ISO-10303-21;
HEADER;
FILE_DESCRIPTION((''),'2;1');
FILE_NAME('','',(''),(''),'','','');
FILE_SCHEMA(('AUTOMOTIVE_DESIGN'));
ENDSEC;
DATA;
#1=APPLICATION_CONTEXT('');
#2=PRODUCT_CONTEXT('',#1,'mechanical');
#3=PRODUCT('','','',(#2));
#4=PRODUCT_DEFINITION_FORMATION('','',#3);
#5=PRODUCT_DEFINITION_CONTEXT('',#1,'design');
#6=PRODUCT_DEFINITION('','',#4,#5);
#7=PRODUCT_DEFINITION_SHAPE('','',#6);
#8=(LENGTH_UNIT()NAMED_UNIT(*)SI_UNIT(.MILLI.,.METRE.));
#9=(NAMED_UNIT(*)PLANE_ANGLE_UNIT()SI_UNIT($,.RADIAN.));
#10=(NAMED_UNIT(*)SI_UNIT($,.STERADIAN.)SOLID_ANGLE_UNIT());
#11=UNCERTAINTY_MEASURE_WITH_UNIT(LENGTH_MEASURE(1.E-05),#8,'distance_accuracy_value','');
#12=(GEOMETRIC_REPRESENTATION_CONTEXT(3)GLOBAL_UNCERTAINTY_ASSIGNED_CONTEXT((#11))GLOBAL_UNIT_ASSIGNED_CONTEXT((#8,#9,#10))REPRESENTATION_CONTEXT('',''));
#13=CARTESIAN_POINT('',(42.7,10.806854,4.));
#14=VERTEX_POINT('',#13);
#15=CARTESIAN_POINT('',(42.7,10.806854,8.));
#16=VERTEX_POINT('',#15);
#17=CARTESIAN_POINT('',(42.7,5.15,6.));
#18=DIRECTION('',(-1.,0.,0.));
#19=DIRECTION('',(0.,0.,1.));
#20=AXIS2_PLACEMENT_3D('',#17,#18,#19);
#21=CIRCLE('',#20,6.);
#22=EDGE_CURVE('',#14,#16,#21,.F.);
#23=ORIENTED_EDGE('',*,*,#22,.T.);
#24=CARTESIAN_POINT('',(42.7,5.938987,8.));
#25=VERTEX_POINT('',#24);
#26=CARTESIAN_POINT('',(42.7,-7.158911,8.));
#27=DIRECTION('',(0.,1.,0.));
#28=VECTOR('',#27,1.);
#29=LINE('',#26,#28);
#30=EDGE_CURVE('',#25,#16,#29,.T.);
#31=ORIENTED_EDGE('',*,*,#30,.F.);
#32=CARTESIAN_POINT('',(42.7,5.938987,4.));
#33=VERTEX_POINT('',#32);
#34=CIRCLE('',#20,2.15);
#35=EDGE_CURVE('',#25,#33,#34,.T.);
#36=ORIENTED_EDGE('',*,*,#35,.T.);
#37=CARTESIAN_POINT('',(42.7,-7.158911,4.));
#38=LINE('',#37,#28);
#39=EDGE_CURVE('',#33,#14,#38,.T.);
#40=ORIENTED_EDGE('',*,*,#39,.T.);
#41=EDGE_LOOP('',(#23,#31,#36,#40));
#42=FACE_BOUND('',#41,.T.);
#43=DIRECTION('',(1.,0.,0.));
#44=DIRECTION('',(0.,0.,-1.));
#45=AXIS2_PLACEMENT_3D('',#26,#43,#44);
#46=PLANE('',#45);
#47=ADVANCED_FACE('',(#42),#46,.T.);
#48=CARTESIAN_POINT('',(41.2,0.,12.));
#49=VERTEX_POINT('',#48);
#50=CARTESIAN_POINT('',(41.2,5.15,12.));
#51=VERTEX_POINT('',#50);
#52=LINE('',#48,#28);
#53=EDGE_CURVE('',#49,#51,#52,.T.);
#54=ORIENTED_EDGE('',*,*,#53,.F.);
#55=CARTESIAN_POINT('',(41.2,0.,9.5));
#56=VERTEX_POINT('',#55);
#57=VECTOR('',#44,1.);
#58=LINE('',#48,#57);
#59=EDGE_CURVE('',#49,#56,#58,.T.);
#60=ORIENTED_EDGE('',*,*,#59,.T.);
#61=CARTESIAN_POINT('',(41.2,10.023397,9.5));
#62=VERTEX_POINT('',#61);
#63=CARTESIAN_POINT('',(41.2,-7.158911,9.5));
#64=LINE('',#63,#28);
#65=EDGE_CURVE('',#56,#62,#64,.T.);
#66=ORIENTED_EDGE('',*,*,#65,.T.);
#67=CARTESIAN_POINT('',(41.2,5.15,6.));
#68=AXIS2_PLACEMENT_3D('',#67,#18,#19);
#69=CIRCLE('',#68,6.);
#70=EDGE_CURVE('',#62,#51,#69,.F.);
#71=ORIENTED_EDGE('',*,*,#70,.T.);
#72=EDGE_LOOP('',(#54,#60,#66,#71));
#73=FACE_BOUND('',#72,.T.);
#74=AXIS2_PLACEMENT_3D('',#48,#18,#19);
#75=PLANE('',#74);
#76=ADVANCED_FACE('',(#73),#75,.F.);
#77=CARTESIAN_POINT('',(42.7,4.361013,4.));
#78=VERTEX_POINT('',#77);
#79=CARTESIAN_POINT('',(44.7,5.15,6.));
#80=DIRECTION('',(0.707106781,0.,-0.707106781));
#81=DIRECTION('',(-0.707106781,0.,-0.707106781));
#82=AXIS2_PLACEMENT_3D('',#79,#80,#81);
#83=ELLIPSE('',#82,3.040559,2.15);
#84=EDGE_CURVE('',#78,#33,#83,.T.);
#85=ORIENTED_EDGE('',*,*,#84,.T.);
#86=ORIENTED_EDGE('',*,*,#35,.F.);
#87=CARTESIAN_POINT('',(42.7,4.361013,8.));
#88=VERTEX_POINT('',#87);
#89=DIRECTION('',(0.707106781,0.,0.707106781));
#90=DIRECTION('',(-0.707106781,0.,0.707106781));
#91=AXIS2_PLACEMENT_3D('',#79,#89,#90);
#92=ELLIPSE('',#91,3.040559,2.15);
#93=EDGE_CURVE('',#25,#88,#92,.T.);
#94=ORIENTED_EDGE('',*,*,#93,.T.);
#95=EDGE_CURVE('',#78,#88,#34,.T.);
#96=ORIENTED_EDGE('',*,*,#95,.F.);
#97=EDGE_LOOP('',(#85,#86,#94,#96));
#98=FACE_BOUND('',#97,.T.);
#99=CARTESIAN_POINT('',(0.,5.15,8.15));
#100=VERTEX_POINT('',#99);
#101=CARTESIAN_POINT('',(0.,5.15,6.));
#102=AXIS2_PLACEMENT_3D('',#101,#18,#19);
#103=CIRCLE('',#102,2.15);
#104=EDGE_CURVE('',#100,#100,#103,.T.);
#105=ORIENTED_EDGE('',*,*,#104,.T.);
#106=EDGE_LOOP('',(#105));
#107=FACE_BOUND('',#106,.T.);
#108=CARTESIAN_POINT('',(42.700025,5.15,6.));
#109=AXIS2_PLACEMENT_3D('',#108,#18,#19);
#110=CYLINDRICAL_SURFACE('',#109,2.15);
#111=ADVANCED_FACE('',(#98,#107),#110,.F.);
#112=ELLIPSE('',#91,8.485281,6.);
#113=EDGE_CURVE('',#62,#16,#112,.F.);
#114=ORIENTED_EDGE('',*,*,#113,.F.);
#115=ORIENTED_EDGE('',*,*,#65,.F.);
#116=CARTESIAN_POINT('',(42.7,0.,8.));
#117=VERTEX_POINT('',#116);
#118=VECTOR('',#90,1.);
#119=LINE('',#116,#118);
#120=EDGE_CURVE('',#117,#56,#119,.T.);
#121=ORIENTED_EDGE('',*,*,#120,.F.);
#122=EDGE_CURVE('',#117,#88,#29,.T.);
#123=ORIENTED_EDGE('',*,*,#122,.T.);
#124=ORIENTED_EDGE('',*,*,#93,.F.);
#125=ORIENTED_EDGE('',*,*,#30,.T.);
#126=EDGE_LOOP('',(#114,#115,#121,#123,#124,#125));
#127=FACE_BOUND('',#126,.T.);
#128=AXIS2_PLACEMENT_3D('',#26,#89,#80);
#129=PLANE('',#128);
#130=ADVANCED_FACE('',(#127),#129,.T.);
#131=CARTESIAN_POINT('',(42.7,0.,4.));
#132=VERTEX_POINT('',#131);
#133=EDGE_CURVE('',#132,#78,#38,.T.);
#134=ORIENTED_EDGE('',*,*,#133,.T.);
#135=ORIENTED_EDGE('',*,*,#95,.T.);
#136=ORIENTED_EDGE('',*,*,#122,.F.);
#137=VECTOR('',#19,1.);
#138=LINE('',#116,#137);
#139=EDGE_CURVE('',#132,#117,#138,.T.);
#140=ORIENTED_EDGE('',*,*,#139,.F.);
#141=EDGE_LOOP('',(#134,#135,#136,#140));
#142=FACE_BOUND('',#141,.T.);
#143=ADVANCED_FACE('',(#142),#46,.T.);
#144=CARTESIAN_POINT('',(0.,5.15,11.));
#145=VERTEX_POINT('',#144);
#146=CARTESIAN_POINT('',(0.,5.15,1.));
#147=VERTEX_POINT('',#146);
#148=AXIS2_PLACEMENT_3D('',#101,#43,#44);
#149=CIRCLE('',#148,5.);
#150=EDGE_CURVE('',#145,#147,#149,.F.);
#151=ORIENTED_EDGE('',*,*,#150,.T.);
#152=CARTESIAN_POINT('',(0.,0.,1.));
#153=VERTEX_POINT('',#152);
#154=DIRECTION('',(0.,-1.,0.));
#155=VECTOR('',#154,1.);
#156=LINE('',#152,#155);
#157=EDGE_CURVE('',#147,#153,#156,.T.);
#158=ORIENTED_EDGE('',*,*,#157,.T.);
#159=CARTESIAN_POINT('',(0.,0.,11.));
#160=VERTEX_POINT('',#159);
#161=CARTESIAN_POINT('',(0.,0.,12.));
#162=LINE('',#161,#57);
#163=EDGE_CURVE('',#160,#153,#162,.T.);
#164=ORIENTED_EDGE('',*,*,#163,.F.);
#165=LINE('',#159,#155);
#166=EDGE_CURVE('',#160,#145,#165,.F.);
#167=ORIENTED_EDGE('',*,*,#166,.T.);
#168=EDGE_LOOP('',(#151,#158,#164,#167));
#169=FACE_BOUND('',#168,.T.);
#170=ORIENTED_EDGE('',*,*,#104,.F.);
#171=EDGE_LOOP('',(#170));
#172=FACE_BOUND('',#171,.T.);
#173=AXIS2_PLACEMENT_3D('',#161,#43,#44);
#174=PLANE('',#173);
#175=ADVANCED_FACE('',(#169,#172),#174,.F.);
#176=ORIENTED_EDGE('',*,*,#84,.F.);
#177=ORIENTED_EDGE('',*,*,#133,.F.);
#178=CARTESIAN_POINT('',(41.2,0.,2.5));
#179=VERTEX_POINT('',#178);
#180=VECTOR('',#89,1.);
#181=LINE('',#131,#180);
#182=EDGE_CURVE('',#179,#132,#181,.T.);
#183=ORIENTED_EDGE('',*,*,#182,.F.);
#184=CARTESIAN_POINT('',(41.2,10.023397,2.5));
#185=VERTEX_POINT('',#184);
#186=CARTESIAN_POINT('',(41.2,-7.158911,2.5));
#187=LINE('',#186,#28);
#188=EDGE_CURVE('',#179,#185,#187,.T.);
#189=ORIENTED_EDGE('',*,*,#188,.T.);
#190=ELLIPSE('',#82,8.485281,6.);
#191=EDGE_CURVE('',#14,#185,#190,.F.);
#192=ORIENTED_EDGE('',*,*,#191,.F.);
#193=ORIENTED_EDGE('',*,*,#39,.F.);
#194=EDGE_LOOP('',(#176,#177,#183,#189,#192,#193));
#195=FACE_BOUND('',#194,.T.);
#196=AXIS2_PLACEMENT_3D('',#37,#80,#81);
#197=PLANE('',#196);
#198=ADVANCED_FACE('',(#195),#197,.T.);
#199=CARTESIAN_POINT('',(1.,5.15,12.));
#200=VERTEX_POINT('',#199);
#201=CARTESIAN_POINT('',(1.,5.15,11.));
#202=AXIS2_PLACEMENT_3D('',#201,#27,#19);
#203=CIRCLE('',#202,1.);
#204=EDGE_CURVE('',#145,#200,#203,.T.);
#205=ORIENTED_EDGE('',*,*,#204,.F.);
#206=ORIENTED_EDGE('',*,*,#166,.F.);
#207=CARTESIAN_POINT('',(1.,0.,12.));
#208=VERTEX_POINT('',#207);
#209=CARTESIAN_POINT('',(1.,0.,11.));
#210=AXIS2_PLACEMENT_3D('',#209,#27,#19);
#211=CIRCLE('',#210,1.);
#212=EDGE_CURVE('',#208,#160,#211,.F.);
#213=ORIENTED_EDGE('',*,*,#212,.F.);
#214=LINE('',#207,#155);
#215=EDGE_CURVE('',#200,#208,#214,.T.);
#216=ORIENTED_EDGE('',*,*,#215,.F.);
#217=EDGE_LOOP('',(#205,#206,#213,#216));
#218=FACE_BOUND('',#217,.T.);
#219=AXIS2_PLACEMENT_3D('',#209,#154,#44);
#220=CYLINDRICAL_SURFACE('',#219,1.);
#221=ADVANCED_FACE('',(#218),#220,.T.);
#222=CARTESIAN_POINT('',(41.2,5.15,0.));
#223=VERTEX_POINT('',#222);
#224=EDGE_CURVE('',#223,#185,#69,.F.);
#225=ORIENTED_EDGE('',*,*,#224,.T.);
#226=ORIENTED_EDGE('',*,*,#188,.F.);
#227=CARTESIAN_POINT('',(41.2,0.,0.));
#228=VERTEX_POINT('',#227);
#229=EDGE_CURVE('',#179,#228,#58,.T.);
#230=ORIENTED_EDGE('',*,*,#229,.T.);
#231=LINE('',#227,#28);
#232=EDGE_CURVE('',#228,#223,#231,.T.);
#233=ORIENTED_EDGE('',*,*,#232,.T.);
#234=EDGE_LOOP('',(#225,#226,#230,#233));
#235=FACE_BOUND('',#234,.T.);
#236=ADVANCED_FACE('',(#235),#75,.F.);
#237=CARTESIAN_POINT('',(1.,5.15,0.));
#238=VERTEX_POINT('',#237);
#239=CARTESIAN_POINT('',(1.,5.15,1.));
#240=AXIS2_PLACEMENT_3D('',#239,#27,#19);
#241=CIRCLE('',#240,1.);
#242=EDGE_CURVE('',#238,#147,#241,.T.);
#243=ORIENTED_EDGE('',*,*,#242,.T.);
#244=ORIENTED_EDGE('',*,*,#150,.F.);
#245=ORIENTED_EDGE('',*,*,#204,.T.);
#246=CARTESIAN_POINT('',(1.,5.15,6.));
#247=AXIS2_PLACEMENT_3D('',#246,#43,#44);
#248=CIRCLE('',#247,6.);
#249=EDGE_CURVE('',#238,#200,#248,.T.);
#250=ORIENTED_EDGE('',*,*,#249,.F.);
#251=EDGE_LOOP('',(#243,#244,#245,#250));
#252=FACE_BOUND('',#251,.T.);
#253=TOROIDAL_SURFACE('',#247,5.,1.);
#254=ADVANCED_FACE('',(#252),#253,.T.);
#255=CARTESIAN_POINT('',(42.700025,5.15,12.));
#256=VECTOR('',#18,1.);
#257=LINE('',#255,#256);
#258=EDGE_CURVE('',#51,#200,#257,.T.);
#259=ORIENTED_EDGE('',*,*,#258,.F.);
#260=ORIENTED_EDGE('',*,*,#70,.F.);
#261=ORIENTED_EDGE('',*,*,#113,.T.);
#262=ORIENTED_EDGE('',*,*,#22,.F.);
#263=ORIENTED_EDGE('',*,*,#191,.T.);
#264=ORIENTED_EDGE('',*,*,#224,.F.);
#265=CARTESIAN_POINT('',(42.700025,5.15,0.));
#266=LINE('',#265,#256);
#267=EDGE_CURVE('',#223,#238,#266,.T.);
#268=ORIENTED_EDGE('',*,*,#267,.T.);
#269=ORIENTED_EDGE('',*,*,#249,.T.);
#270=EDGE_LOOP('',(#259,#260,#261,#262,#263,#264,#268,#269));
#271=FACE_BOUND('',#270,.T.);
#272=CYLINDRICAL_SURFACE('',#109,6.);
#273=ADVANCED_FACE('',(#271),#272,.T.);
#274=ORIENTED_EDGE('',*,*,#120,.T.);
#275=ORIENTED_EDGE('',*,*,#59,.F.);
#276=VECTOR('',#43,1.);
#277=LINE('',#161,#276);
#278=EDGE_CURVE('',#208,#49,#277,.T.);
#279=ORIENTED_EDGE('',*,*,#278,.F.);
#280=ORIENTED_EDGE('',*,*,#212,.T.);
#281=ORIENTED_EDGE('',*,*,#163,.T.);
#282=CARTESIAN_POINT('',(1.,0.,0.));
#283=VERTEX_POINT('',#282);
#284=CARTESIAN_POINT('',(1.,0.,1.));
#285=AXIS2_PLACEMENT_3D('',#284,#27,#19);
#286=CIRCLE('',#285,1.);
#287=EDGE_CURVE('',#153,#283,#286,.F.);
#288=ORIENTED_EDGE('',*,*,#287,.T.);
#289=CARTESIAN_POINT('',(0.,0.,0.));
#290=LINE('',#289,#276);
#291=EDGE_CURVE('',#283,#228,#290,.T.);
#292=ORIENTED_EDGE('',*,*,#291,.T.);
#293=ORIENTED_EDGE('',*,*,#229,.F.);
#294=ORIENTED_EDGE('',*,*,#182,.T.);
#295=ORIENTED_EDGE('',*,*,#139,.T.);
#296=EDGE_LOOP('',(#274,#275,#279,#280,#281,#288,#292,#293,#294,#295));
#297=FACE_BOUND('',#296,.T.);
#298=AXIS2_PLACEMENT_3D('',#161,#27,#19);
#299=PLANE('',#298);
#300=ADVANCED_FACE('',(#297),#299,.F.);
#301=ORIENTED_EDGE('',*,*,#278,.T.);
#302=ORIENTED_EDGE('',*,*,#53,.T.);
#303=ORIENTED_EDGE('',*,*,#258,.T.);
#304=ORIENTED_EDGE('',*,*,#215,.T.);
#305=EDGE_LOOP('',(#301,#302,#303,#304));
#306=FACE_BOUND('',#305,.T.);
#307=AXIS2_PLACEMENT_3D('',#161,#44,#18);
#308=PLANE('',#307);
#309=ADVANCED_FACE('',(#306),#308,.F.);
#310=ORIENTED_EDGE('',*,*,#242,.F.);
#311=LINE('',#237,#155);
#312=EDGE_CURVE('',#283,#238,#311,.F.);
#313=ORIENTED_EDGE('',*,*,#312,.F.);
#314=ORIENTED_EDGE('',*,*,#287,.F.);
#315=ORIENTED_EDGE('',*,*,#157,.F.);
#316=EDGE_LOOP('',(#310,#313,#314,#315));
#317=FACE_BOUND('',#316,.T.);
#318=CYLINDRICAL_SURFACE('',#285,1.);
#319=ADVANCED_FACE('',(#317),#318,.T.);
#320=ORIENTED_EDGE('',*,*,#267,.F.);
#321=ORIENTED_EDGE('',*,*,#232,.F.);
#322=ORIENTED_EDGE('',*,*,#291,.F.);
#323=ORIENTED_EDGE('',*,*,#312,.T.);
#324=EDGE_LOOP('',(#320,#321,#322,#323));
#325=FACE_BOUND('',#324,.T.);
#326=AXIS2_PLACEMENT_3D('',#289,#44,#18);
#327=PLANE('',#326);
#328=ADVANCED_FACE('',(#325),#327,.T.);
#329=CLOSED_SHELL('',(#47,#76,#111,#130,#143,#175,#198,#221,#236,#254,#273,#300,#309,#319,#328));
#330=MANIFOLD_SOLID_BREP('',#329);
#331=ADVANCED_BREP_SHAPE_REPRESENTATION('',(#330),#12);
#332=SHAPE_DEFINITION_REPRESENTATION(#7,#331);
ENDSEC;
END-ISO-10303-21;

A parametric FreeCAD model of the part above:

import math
import FreeCAD as App
import Part
import Sketcher

V = App.Vector
Q = App.Units.Quantity


def edges_at(feature, points):
    """Names of the edges that pass closest to the given points."""
    edges = feature.Shape.Edges
    near = lambda p: min(range(len(edges)), key=lambda i: edges[i].distToShape(Part.Vertex(*p))[0])
    return sorted({f"Edge{near(p) + 1}" for p in points})


def add_polygon(sketch, points):
    """Adds a closed chain of lines whose ends are joined by coincident constraints."""
    first, n = sketch.GeometryCount, len(points)
    for a, b in zip(points, points[1:] + points[:1]):
        sketch.addGeometry(Part.LineSegment(App.Vector(*a, 0), App.Vector(*b, 0)), False)
    for i in range(n):
        sketch.addConstraint(Sketcher.Constraint("Coincident", first + i, 2, first + (i + 1) % n, 1))

doc = App.newDocument("Part")
params = doc.addObject("Spreadsheet::Sheet", "Params")
for row, (alias, value) in enumerate([
    ("sketch1_height", "13 mm"),
    ("sketch1_width", "41.2 mm"),
    ("pad1_length", "12 mm"),
    ("sketch2_height", "4 mm"),
    ("sketch2_height2", "7 mm"),
    ("pad2_length", "13 mm"),
    ("sketch3_radius", "6 mm"),
    ("sketch3_diameter", "4.3 mm"),
    ("fillet_radius", "1 mm"),
], start=1):
    params.set(f"A{row}", alias)
    params.set(f"B{row}", "=" + value)
    params.setAlias(f"B{row}", alias)

body = doc.addObject("PartDesign::Body", "Body")

# Sketch on XY plane
sketch1 = body.newObject("Sketcher::SketchObject", "Sketch")
sketch1.AttachmentSupport = (doc.getObject("XY_Plane"), [""])
sketch1.MapMode = "FlatFace"
add_polygon(sketch1, [(0, 13), (0, 0), (41.2, 0), (41.2, 13)])  # lines 0-3
sketch1.addConstraint([
    Sketcher.Constraint("Vertical", 0),
    Sketcher.Constraint("Horizontal", 1),
    Sketcher.Constraint("Vertical", 2),
    Sketcher.Constraint("Horizontal", 3),
    Sketcher.Constraint("Coincident", 0, 2, -1, 1),
    Sketcher.Constraint("DistanceY", 0, 2, 0, 1, Q("13 mm")),
    Sketcher.Constraint("DistanceX", 1, 1, 1, 2, Q("41.2 mm")),
])
sketch1.setExpression("Constraints[9]", "Params.sketch1_height")
sketch1.setExpression("Constraints[10]", "Params.sketch1_width")
pad1 = body.newObject("PartDesign::Pad", "Pad")
pad1.Profile = sketch1
pad1.setExpression("Length", "Params.pad1_length")

# Sketch on XZ plane
sketch2 = body.newObject("Sketcher::SketchObject", "Sketch001")
sketch2.AttachmentSupport = (doc.getObject("XZ_Plane"), [""])
sketch2.MapMode = "FlatFace"
sketch2.AttachmentOffset = App.Placement(V(0, 0, -13), App.Rotation())
add_polygon(sketch2, [(41.2, 9.5), (42.7, 8), (42.7, 4), (41.2, 2.5)])  # lines 0-3
sketch2.addConstraint([
    Sketcher.Constraint("Vertical", 1),
    Sketcher.Constraint("Vertical", 3),
    Sketcher.Constraint("Perpendicular", 0, 2),
    Sketcher.Constraint("Equal", 0, 2),
    Sketcher.Constraint("DistanceY", 1, 2, 1, 1, Q("4 mm")),
    Sketcher.Constraint("DistanceY", 3, 1, 3, 2, Q("7 mm")),
    Sketcher.Constraint("DistanceY", -1, 1, 0, 2, Q("8 mm")),
    Sketcher.Constraint("DistanceX", -1, 1, 0, 2, Q("42.7 mm")),
])
sketch2.setExpression("Constraints[8]", "Params.sketch2_height")
sketch2.setExpression("Constraints[9]", "Params.sketch2_height2")
pad2 = body.newObject("PartDesign::Pad", "Pad001")
pad2.Profile = sketch2
pad2.setExpression("Length", "Params.pad2_length")

# Sketch on YZ plane
sketch3 = body.newObject("Sketcher::SketchObject", "Sketch002")
sketch3.AttachmentSupport = (doc.getObject("YZ_Plane"), [""])
sketch3.MapMode = "FlatFace"
sketch3.addGeometry([
    Part.Circle(V(5.15, 6, 0), V(0, 0, 1), 2.15),  # 0
    Part.LineSegment(V(5.15, -1.898051, 0), V(5.15, 0, 0)),  # 1
    Part.ArcOfCircle(Part.Circle(V(5.15, 6, 0), V(0, 0, 1), 6), math.radians(-90), math.radians(90)),  # 2
    Part.LineSegment(V(5.15, 12, 0), V(5.15, 16.198165, 0)),  # 3
    Part.LineSegment(V(5.15, 16.198165, 0), V(14.318931, 16.198165, 0)),  # 4
    Part.LineSegment(V(14.318931, 16.198165, 0), V(14.318931, -1.898051, 0)),  # 5
    Part.LineSegment(V(14.318931, -1.898051, 0), V(5.15, -1.898051, 0)),  # 6
], False)
sketch3.addConstraint([
    Sketcher.Constraint("Coincident", 1, 2, 2, 1),
    Sketcher.Constraint("Coincident", 2, 2, 3, 1),
    Sketcher.Constraint("Coincident", 3, 2, 4, 1),
    Sketcher.Constraint("Coincident", 4, 2, 5, 1),
    Sketcher.Constraint("Coincident", 5, 2, 6, 1),
    Sketcher.Constraint("Coincident", 6, 2, 1, 1),
    Sketcher.Constraint("Vertical", 1),
    Sketcher.Constraint("Vertical", 3),
    Sketcher.Constraint("Horizontal", 4),
    Sketcher.Constraint("Vertical", 5),
    Sketcher.Constraint("Horizontal", 6),
    Sketcher.Constraint("Coincident", 2, 3, 0, 3),
    Sketcher.Constraint("PointOnObject", 1, 2, -1),
    Sketcher.Constraint("Vertical", 2, 3, 1, 2),
    Sketcher.Constraint("Vertical", 1, 2, 2, 2),
    Sketcher.Constraint("Radius", 2, Q("6 mm")),
    Sketcher.Constraint("Diameter", 0, Q("4.3 mm")),
    Sketcher.Constraint("DistanceX", -1, 1, 0, 3, Q("5.15 mm")),
    Sketcher.Constraint("DistanceX", 4, 1, 4, 2, Q("9.168931 mm")),
    Sketcher.Constraint("DistanceY", 1, 1, 1, 2, Q("1.898051 mm")),
    Sketcher.Constraint("DistanceY", 3, 1, 3, 2, Q("4.198165 mm")),
])
sketch3.setExpression("Constraints[15]", "Params.sketch3_radius")
sketch3.setExpression("Constraints[16]", "Params.sketch3_diameter")
pocket1 = body.newObject("PartDesign::Pocket", "Pocket")
pocket1.Profile = sketch3
pocket1.Type = "ThroughAll"
pocket1.Reversed = True
doc.recompute()

fillet = body.newObject("PartDesign::Fillet", "Fillet")
fillet.Base = (pocket1, edges_at(pocket1, [(0, 2.575, 0), (0, 2.575, 12), (0, 11.15, 6)]))
fillet.setExpression("Radius", "Params.fillet_radius")

doc.recompute()
